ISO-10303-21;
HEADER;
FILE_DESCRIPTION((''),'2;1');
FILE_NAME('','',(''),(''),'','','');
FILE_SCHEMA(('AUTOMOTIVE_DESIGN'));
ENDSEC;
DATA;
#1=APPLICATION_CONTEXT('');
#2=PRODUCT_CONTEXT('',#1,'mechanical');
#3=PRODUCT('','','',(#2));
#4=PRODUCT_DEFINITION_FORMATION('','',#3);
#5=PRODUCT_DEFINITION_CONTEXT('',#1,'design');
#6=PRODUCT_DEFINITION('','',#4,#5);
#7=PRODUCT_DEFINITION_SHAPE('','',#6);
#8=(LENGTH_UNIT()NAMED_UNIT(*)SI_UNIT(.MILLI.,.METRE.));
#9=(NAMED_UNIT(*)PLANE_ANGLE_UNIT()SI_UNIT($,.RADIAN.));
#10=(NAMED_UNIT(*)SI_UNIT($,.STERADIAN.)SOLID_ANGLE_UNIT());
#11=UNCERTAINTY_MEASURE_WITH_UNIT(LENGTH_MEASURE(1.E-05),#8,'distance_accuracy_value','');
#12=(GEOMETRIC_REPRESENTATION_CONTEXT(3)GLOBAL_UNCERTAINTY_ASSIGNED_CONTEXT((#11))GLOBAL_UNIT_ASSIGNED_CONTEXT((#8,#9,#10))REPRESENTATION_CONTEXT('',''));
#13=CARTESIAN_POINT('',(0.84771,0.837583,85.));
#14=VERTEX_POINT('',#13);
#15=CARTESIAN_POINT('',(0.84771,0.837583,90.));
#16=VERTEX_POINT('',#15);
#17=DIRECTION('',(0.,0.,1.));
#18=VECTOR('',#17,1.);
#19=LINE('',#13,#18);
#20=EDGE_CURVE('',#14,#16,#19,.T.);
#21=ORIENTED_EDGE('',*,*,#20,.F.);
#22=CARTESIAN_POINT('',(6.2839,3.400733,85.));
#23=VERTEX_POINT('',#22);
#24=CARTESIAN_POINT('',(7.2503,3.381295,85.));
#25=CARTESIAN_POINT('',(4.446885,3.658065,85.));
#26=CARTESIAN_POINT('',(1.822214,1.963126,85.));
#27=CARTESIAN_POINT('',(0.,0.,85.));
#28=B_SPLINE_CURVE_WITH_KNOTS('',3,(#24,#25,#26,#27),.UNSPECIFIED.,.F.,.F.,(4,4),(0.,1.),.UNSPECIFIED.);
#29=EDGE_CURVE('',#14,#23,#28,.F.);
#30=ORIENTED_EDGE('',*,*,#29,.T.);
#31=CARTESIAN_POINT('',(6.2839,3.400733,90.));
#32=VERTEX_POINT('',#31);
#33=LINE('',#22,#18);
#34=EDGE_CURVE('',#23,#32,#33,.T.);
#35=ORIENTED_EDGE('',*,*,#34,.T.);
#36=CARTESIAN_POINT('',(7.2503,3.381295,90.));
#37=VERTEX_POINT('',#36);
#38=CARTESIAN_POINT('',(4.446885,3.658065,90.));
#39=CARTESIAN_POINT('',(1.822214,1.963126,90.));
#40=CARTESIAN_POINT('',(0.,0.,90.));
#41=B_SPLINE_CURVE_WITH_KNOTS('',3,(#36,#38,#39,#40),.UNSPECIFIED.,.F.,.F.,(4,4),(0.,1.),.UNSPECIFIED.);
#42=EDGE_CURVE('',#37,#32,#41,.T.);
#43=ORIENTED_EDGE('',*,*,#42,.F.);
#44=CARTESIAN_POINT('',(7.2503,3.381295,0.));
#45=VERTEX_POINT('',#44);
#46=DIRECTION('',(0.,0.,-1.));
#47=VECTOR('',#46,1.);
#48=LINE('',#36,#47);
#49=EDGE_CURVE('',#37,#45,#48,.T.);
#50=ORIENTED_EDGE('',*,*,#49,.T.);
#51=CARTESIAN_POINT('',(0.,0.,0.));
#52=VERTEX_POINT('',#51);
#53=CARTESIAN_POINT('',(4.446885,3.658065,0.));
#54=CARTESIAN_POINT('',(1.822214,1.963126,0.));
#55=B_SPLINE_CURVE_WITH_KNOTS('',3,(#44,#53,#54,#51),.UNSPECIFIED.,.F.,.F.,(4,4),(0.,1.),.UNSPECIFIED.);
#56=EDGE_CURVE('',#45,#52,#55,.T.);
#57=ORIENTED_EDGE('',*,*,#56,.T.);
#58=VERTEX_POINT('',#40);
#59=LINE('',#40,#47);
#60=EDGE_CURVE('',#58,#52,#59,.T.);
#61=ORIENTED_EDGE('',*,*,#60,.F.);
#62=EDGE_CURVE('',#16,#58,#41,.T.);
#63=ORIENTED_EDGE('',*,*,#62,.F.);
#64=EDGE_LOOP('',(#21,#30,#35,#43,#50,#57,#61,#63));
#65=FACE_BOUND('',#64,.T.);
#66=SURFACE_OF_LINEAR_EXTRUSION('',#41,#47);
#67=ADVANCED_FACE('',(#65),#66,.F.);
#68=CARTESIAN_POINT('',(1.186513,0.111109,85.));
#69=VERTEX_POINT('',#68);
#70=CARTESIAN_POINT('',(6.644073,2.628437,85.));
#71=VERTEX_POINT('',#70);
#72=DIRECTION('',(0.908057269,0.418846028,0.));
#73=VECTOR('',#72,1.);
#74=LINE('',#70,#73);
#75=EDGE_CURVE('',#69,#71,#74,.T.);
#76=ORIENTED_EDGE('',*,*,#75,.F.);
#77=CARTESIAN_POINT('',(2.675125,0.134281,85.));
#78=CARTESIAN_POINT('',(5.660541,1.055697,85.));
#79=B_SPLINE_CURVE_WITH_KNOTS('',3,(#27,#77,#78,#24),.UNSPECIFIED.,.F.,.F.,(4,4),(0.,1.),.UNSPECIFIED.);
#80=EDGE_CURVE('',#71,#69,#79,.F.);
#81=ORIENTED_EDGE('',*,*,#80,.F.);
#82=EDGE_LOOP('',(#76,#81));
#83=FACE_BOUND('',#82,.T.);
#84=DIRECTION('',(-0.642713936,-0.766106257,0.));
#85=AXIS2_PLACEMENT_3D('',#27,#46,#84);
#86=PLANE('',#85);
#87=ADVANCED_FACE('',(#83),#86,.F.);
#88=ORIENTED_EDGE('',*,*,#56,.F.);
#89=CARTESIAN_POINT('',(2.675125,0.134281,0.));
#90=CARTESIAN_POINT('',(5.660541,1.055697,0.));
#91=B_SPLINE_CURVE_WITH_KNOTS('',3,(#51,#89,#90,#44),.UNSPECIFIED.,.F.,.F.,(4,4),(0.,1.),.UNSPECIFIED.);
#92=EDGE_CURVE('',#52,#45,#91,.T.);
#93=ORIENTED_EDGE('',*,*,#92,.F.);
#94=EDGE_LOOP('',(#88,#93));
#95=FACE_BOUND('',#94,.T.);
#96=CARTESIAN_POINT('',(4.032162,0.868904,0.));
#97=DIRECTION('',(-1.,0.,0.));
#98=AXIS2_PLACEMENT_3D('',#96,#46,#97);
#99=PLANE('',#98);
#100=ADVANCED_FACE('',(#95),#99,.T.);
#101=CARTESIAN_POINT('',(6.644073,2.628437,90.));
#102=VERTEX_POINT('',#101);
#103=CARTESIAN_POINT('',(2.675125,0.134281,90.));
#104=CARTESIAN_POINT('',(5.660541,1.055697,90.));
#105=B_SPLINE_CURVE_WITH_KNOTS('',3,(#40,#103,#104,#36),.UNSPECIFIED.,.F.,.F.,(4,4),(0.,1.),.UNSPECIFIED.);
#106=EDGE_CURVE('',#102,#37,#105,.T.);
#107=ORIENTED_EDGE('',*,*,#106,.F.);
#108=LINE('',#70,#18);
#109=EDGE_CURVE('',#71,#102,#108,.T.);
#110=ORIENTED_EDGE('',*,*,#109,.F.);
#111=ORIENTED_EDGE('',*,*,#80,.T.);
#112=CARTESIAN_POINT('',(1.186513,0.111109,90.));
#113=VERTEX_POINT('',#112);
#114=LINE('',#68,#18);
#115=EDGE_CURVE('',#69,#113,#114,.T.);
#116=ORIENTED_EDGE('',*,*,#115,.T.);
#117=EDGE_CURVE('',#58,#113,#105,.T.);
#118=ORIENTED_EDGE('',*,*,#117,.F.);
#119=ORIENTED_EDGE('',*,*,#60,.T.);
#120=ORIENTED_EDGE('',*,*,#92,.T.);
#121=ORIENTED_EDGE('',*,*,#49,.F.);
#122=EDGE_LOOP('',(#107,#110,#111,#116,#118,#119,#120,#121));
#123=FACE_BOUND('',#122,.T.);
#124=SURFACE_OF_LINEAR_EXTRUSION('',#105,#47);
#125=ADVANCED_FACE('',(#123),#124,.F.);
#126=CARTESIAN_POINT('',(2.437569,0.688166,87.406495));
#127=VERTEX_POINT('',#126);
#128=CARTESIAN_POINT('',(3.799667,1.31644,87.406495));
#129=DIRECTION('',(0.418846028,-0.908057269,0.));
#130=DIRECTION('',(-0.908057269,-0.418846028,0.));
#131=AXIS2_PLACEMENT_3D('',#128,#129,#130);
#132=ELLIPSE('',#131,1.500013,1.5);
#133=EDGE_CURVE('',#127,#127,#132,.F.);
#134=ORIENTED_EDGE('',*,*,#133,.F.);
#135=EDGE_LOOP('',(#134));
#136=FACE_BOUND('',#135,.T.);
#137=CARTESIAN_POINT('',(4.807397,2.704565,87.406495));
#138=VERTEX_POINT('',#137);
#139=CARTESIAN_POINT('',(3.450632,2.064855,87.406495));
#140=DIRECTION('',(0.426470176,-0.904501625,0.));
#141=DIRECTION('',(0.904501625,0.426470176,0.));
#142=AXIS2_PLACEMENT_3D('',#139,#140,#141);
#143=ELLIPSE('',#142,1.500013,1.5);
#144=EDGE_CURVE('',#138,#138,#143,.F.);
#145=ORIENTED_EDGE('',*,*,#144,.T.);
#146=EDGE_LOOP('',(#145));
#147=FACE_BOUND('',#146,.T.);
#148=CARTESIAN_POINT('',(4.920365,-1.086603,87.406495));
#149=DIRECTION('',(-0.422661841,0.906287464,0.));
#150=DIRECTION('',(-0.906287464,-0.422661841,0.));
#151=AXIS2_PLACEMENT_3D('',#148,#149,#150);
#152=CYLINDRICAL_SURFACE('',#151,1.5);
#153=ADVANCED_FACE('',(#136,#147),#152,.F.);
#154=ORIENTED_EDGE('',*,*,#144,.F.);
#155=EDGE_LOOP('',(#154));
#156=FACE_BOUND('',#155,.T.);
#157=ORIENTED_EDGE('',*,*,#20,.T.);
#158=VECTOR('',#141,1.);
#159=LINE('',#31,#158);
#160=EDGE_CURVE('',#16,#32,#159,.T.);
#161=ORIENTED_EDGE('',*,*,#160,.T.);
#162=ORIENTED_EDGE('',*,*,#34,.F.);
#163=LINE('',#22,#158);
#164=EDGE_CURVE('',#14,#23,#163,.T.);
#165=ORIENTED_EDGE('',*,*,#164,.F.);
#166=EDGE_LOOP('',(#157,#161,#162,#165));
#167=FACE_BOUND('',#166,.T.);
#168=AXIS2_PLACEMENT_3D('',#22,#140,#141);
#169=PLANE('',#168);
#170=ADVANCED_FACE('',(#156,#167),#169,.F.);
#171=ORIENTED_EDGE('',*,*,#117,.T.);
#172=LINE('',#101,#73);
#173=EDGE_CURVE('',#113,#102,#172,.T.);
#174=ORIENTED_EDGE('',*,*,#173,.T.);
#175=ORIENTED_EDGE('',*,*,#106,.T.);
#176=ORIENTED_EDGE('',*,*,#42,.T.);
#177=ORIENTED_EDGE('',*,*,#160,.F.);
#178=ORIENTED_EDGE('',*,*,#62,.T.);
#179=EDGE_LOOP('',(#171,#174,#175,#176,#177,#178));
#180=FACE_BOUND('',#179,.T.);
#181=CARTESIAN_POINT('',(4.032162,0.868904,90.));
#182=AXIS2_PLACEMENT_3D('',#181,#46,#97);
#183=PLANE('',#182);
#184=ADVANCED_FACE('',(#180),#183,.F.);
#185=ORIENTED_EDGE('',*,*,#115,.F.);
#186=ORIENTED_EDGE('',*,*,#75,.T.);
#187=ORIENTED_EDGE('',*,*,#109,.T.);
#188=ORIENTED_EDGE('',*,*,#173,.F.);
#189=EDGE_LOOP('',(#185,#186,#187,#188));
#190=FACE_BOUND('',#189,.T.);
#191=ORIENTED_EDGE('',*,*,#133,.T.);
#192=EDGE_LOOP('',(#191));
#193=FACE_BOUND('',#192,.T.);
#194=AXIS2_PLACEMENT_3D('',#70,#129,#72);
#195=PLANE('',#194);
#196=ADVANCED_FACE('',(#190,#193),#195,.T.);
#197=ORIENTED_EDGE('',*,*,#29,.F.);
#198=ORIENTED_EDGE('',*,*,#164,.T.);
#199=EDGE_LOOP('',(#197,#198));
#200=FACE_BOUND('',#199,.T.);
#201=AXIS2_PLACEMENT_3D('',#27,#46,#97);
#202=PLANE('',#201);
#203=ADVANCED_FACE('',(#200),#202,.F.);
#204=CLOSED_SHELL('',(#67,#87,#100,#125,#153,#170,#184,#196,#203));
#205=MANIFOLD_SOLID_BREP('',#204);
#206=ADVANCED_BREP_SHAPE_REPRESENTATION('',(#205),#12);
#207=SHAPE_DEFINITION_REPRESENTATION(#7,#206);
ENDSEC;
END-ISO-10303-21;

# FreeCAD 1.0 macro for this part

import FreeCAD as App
import Part
import Sketcher


def add_polygon(sketch, points):
    """Adds a closed chain of lines whose ends are joined by coincident constraints."""
    first, n = sketch.GeometryCount, len(points)
    for a, b in zip(points, points[1:] + points[:1]):
        sketch.addGeometry(Part.LineSegment(App.Vector(*a, 0), App.Vector(*b, 0)), False)
    for i in range(n):
        sketch.addConstraint(Sketcher.Constraint("Coincident", first + i, 2, first + (i + 1) % n, 1))

doc = App.newDocument("Part")
body = doc.addObject("PartDesign::Body", "Body")

# Sketch on XY plane
sketch1 = doc.addObject("Sketcher::SketchObject", "Sketch")
body.addObject(sketch1)
sketch1.AttachmentSupport = (doc.XY_Plane, [""])
sketch1.MapMode = "FlatFace"
sketch1.addGeometry([
    Part.BSplineCurve([App.Vector(0, 0, 0), App.Vector(1.822214, 1.963126, 0), App.Vector(4.446885, 3.658065, 0), App.Vector(7.2503, 3.381295, 0)], [4, 4], [0, 1], False, 3, [1, 1, 1, 1], False),
    Part.BSplineCurve([App.Vector(0, 0, 0), App.Vector(2.675125, 0.134281, 0), App.Vector(5.660541, 1.055697, 0), App.Vector(7.2503, 3.381295, 0)], [4, 4], [0, 1], False, 3, [1, 1, 1, 1], False),
], False)
sketch1.addConstraint([
    Sketcher.Constraint("Block", 0),
    Sketcher.Constraint("Block", 1),
])
pad1 = doc.addObject("PartDesign::Pad", "Pad")
body.addObject(pad1)
pad1.Profile = sketch1
pad1.Length = 90

# Sketch on an angled plane
sketch2 = doc.addObject("Sketcher::SketchObject", "Sketch001")
body.addObject(sketch2)
sketch2.Placement = App.Placement(App.Vector(0, 0, 0), App.Rotation(App.Vector(-0.906287464, -0.422661841, 0), App.Vector(0, 0, 0.999999999), App.Vector(-0.422661841, 0.906287464, 0), "ZXY"))
sketch2.addGeometry(Part.Circle(App.Vector(-4, 87.406495, 0), App.Vector(0, 0, 1), 1.5), False)
sketch2.addConstraint([
    Sketcher.Constraint("Diameter", 0, 3.0),
    Sketcher.Constraint("DistanceX", 0, 3, -1, 1, 4.0),
    Sketcher.Constraint("DistanceY", -1, 1, 0, 3, 87.406495),
])
pocket1 = doc.addObject("PartDesign::Pocket", "Pocket")
body.addObject(pocket1)
pocket1.Profile = sketch2
pocket1.Type = "ThroughAll"
pocket1.Midplane = True

# Sketch on XY plane
sketch3 = doc.addObject("Sketcher::SketchObject", "Sketch002")
body.addObject(sketch3)
sketch3.AttachmentSupport = (doc.XY_Plane, [""])
sketch3.MapMode = "FlatFace"
sketch3.AttachmentOffset = App.Placement(App.Vector(0, 0, 90), App.Rotation())
add_polygon(sketch3, [(0.84771, 0.837583), (6.2839, 3.400733), (5.375309, 5.699003), (-0.204084, 3.068334)])  # lines 0-3
sketch3.addConstraint([
    Sketcher.Constraint("Parallel", 0, 2),
    Sketcher.Constraint("Perpendicular", 2, 3),
    Sketcher.Constraint("DistanceX", -1, 1, 0, 2, 6.2839),
    Sketcher.Constraint("DistanceY", 2, 2, 0, 2, 0.332399),
    Sketcher.Constraint("DistanceX", 3, 2, 1, 2, 4.527599),
    Sketcher.Constraint("Distance", 0, 6.01015),
    Sketcher.Constraint("Distance", 2, 6.168471),
    Sketcher.Constraint("DistanceY", -1, 1, 0, 2, 3.400733),
])
pocket2 = doc.addObject("PartDesign::Pocket", "Pocket001")
body.addObject(pocket2)
pocket2.Profile = sketch3
pocket2.Length = 5
doc.recompute()

datumplane = doc.addObject("PartDesign::Plane", "DatumPlane")
body.addObject(datumplane)
datumplane.Placement = App.Placement(App.Vector(0, 0, 0), App.Rotation(App.Vector(0.906287464, 0.422661841, 0), App.Vector(0, 0, -1), App.Vector(-0.422661841, 0.906287464, 0), "ZXY"))
mirrored = doc.addObject("PartDesign::Mirrored", "Mirrored")
body.addObject(mirrored)
mirrored.Originals = [pocket2]
mirrored.MirrorPlane = (datumplane, [""])
body.Tip = mirrored

doc.recompute()
